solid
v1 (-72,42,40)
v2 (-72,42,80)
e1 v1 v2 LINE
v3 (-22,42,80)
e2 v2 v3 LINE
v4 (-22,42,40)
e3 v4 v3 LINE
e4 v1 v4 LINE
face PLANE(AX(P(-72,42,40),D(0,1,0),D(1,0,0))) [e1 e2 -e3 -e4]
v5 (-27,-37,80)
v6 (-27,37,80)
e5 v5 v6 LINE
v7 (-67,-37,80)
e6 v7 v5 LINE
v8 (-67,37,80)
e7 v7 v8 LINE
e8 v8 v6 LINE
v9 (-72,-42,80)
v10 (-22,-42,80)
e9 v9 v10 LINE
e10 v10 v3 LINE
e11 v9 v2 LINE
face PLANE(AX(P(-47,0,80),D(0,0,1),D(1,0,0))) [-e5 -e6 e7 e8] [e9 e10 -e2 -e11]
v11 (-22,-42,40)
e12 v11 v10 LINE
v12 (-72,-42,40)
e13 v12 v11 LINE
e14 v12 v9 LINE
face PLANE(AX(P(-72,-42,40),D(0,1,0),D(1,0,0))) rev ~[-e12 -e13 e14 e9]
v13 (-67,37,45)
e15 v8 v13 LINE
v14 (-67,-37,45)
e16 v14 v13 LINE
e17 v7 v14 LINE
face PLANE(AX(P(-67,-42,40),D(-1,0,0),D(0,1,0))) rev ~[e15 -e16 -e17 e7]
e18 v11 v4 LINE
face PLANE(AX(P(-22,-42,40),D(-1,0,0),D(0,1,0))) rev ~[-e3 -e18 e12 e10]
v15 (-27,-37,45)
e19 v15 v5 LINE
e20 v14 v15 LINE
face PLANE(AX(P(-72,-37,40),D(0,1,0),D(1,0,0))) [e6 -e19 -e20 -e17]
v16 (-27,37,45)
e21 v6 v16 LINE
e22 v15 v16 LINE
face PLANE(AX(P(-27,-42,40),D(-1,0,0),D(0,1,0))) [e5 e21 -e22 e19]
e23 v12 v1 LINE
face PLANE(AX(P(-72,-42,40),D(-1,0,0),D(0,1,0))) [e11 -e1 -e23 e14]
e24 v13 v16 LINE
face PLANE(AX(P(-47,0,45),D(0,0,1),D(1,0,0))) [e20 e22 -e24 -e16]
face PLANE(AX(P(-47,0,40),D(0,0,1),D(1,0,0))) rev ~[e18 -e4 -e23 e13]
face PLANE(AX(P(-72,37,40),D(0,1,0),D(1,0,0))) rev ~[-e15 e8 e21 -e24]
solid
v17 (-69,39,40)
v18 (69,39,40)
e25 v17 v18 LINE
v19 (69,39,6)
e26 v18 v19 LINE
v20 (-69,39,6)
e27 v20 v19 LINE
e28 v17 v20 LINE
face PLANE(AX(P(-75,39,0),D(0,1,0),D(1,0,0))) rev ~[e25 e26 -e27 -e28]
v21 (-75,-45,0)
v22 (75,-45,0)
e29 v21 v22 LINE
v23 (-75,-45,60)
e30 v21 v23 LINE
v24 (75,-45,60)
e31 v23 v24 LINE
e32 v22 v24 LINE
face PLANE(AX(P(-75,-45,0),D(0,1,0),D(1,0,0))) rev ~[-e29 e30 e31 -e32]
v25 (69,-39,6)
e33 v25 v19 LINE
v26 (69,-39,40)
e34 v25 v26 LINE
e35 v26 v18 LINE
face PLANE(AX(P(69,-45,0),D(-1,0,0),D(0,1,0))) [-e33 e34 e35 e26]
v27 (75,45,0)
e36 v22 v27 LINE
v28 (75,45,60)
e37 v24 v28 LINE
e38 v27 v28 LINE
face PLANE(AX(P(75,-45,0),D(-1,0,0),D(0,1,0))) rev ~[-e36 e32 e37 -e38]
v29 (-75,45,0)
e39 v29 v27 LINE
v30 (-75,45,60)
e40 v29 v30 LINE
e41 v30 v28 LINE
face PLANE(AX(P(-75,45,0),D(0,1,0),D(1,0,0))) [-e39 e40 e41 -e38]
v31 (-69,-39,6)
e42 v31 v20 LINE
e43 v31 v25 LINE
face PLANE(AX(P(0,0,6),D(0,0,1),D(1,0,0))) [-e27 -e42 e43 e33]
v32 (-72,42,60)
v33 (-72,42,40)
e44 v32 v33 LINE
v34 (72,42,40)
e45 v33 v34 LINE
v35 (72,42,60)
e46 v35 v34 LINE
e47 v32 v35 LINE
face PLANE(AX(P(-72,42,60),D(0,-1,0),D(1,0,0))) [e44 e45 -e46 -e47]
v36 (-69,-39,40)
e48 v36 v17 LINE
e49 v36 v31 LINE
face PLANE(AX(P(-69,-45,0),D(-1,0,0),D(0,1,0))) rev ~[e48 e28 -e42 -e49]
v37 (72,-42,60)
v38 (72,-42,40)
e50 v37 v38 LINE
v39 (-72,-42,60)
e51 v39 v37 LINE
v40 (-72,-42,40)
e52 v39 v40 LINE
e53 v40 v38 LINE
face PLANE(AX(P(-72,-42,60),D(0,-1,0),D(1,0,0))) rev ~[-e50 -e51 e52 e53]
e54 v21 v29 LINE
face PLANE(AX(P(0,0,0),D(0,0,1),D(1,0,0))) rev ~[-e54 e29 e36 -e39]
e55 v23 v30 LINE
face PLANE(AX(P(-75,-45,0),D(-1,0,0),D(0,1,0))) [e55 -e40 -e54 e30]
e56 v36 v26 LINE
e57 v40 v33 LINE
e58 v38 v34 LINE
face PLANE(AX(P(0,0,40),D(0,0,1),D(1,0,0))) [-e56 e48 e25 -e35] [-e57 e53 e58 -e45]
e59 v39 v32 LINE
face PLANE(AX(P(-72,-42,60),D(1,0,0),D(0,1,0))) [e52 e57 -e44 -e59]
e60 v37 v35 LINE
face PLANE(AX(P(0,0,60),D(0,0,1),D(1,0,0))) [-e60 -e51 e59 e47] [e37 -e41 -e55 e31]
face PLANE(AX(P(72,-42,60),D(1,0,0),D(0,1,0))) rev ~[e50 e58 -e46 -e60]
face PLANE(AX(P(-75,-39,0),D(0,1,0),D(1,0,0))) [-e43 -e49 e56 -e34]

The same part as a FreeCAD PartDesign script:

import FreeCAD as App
import Part
import Sketcher
from FreeCAD import Vector
Q = App.Units.Quantity


def faces_at(feature, points):
    """Names of the faces that lie closest to the given points."""
    faces = feature.Shape.Faces
    near = lambda p: min(range(len(faces)), key=lambda i: faces[i].distToShape(Part.Vertex(*p))[0])
    return sorted({f"Face{near(p) + 1}" for p in points})

doc = App.newDocument("Part")
body = doc.addObject("PartDesign::Body", "Body")

# Sketch on XY plane
sketch1 = body.newObject("Sketcher::SketchObject", "Sketch")
sketch1.AttachmentSupport = (doc.getObject("XY_Plane"), [""])
sketch1.MapMode = "FlatFace"
sketch1.addGeometry(Part.LineSegment(Vector(-75, 45, 0), Vector(-75, -45, 0)), False)
sketch1.addGeometry(Part.LineSegment(Vector(-75, -45, 0), Vector(75, -45, 0)), False)
sketch1.addGeometry(Part.LineSegment(Vector(75, -45, 0), Vector(75, 45, 0)), False)
sketch1.addGeometry(Part.LineSegment(Vector(75, 45, 0), Vector(-75, 45, 0)), False)
sketch1.addConstraint(Sketcher.Constraint("Coincident", 0, 2, 1, 1))
sketch1.addConstraint(Sketcher.Constraint("Coincident", 1, 2, 2, 1))
sketch1.addConstraint(Sketcher.Constraint("Coincident", 2, 2, 3, 1))
sketch1.addConstraint(Sketcher.Constraint("Coincident", 3, 2, 0, 1))
sketch1.addConstraint(Sketcher.Constraint("Vertical", 0))
sketch1.addConstraint(Sketcher.Constraint("Horizontal", 1))
sketch1.addConstraint(Sketcher.Constraint("Vertical", 2))
sketch1.addConstraint(Sketcher.Constraint("Horizontal", 3))
sketch1.addConstraint(Sketcher.Constraint("Symmetric", 0, 2, 2, 2, -1, 1))
sketch1.addConstraint(Sketcher.Constraint("DistanceX", 1, 1, 1, 2, Q("150 mm")))
sketch1.addConstraint(Sketcher.Constraint("DistanceY", 0, 2, 0, 1, Q("90 mm")))
pad1 = body.newObject("PartDesign::Pad", "Pad")
pad1.Profile = sketch1
pad1.Length = 60
doc.recompute()

thickness = body.newObject("PartDesign::Thickness", "Thickness")
thickness.Base = (pad1, faces_at(pad1, [(0, 0, 60)]))
thickness.Value = 6
thickness.Reversed = True
thickness.Join = "Arc"

# Sketch on XY plane
sketch2 = body.newObject("Sketcher::SketchObject", "Sketch001")
sketch2.AttachmentSupport = (doc.getObject("XY_Plane"), [""])
sketch2.MapMode = "FlatFace"
sketch2.AttachmentOffset = App.Placement(Vector(0, 0, 60), App.Rotation())
sketch2.addGeometry(Part.LineSegment(Vector(-72, 42, 0), Vector(-72, -42, 0)), False)
sketch2.addGeometry(Part.LineSegment(Vector(-72, -42, 0), Vector(72, -42, 0)), False)
sketch2.addGeometry(Part.LineSegment(Vector(72, -42, 0), Vector(72, 42, 0)), False)
sketch2.addGeometry(Part.LineSegment(Vector(72, 42, 0), Vector(-72, 42, 0)), False)
sketch2.addConstraint(Sketcher.Constraint("Coincident", 0, 2, 1, 1))
sketch2.addConstraint(Sketcher.Constraint("Coincident", 1, 2, 2, 1))
sketch2.addConstraint(Sketcher.Constraint("Coincident", 2, 2, 3, 1))
sketch2.addConstraint(Sketcher.Constraint("Coincident", 3, 2, 0, 1))
sketch2.addConstraint(Sketcher.Constraint("Vertical", 0))
sketch2.addConstraint(Sketcher.Constraint("Horizontal", 1))
sketch2.addConstraint(Sketcher.Constraint("Vertical", 2))
sketch2.addConstraint(Sketcher.Constraint("Horizontal", 3))
sketch2.addConstraint(Sketcher.Constraint("Symmetric", 0, 2, 2, 2, -1, 1))
sketch2.addConstraint(Sketcher.Constraint("DistanceX", 1, 1, 1, 2, Q("144 mm")))
sketch2.addConstraint(Sketcher.Constraint("DistanceY", 0, 2, 0, 1, Q("84 mm")))
pocket1 = body.newObject("PartDesign::Pocket", "Pocket")
pocket1.Profile = sketch2
pocket1.Length = 20
body2 = doc.addObject("PartDesign::Body", "Body001")

# Sketch on XY plane
sketch3 = body2.newObject("Sketcher::SketchObject", "Sketch002")
sketch3.AttachmentSupport = (doc.getObject("XY_Plane001"), [""])
sketch3.MapMode = "FlatFace"
sketch3.AttachmentOffset = App.Placement(Vector(0, 0, 40), App.Rotation())
sketch3.addGeometry(Part.LineSegment(Vector(-72, 42, 0), Vector(-72, -42, 0)), False)
sketch3.addGeometry(Part.LineSegment(Vector(-72, -42, 0), Vector(-22, -42, 0)), False)
sketch3.addGeometry(Part.LineSegment(Vector(-22, -42, 0), Vector(-22, 42, 0)), False)
sketch3.addGeometry(Part.LineSegment(Vector(-22, 42, 0), Vector(-72, 42, 0)), False)
sketch3.addConstraint(Sketcher.Constraint("Coincident", 0, 2, 1, 1))
sketch3.addConstraint(Sketcher.Constraint("Coincident", 1, 2, 2, 1))
sketch3.addConstraint(Sketcher.Constraint("Coincident", 2, 2, 3, 1))
sketch3.addConstraint(Sketcher.Constraint("Coincident", 3, 2, 0, 1))
sketch3.addConstraint(Sketcher.Constraint("Vertical", 0))
sketch3.addConstraint(Sketcher.Constraint("Horizontal", 1))
sketch3.addConstraint(Sketcher.Constraint("Vertical", 2))
sketch3.addConstraint(Sketcher.Constraint("Horizontal", 3))
sketch3.addConstraint(Sketcher.Constraint("DistanceX", 1, 1, 1, 2, Q("50 mm")))
sketch3.addConstraint(Sketcher.Constraint("DistanceY", 0, 2, 0, 1, Q("84 mm")))
sketch3.addConstraint(Sketcher.Constraint("DistanceX", 0, 2, -1, 1, Q("72 mm")))
sketch3.addConstraint(Sketcher.Constraint("DistanceY", 0, 2, -1, 1, Q("42 mm")))
pad2 = body2.newObject("PartDesign::Pad", "Pad001")
pad2.Profile = sketch3
pad2.Length = 40
doc.recompute()

thickness2 = body2.newObject("PartDesign::Thickness", "Thickness001")
thickness2.Base = (pad2, faces_at(pad2, [(-47, 0, 80)]))
thickness2.Value = 5
thickness2.Reversed = True
thickness2.Join = "Arc"

doc.recompute()
